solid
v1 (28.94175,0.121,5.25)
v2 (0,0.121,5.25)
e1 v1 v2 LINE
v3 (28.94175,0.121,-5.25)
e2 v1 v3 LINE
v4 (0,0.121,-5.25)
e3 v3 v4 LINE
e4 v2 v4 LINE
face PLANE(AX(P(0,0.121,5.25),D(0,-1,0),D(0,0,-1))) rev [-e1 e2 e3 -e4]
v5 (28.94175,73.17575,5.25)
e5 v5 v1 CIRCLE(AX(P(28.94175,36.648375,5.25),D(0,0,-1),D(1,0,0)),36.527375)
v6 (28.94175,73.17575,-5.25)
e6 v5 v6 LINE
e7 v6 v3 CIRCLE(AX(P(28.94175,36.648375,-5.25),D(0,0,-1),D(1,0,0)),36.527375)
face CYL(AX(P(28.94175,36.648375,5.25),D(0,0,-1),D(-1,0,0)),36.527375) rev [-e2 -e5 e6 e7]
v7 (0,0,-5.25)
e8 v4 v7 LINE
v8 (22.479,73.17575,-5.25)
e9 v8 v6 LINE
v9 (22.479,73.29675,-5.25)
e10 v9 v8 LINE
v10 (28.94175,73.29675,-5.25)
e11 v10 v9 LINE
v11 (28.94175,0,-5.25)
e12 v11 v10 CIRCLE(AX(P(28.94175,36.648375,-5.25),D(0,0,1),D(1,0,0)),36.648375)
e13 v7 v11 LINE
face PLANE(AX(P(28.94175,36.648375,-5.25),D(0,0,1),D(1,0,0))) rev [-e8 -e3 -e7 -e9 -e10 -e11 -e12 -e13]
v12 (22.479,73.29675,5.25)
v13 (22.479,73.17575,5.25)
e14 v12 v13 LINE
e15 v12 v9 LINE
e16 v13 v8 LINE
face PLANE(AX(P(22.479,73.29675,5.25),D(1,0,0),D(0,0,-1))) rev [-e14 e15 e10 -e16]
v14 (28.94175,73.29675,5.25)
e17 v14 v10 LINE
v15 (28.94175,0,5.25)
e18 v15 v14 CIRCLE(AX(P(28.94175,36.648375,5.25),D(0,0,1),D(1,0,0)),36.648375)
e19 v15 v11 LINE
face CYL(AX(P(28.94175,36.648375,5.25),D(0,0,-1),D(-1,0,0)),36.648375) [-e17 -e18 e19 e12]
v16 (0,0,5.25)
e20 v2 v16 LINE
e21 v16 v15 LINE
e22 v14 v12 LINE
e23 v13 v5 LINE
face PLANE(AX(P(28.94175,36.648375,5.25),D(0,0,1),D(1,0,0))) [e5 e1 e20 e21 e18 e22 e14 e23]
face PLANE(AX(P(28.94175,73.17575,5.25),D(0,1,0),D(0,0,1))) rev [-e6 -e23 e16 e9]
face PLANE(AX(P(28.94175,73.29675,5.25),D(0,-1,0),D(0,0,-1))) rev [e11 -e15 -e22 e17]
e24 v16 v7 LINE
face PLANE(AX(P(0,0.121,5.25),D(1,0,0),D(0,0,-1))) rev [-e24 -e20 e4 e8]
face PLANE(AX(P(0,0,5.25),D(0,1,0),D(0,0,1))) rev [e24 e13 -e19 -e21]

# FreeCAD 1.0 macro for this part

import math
import FreeCAD as App
import Part
import Sketcher

V = App.Vector
Q = App.Units.Quantity

doc = App.newDocument("Part")
params = doc.addObject("Spreadsheet::Sheet", "Params")
for row, (alias, value) in enumerate([
    ("pad1_length", "10.5 mm"),
], start=1):
    params.set(f"A{row}", alias)
    params.set(f"B{row}", "=" + value)
    params.setAlias(f"B{row}", alias)

body = doc.addObject("PartDesign::Body", "Body")

# Sketch on XY plane
sketch1 = body.newObject("Sketcher::SketchObject", "Sketch")
sketch1.AttachmentSupport = (doc.getObject("XY_Plane"), [""])
sketch1.MapMode = "FlatFace"
sketch1.addGeometry([
    Part.LineSegment(V(0, 0, 0), V(28.94, 0, 0)),  # 0
    Part.ArcOfCircle(Part.Circle(V(28.94, 36.65, 0), V(0, 0, 1), 36.65), math.radians(-90), math.radians(90)),  # 1
    Part.LineSegment(V(28.94, 73.3, 0), V(22.48, 73.3, 0)),  # 2
    Part.LineSegment(V(22.48, 73.3, 0), V(22.48, 73.18, 0)),  # 3
    Part.LineSegment(V(22.48, 73.18, 0), V(28.94, 73.18, 0)),  # 4
    Part.ArcOfCircle(Part.Circle(V(28.94, 36.65, 0), V(0, 0, 1), 36.53), math.radians(-90), math.radians(90)),  # 5
    Part.LineSegment(V(28.94, 0.12, 0), V(0, 0.12, 0)),  # 6
    Part.LineSegment(V(0, 0.12, 0), V(0, 0, 0)),  # 7
], False)
sketch1.addConstraint([
    Sketcher.Constraint("Tangent", 0, 2, 1, 1),
    Sketcher.Constraint("Tangent", 1, 2, 2, 1),
    Sketcher.Constraint("Coincident", 2, 2, 3, 1),
    Sketcher.Constraint("Coincident", 3, 2, 4, 1),
    Sketcher.Constraint("Tangent", 4, 2, 5, 2),
    Sketcher.Constraint("Tangent", 5, 1, 6, 1),
    Sketcher.Constraint("Coincident", 6, 2, 7, 1),
    Sketcher.Constraint("Coincident", 7, 2, 0, 1),
    Sketcher.Constraint("Horizontal", 0),
    Sketcher.Constraint("Horizontal", 2),
    Sketcher.Constraint("Vertical", 3),
    Sketcher.Constraint("Horizontal", 4),
    Sketcher.Constraint("Horizontal", 6),
    Sketcher.Constraint("Vertical", 7),
    Sketcher.Constraint("Coincident", 7, 2, -1, 1),
    Sketcher.Constraint("Coincident", 5, 3, 1, 3),
    Sketcher.Constraint("DistanceY", 3, 2, 3, 1, Q("0.121 mm")),
    Sketcher.Constraint("DistanceX", -1, 1, 2, 2, Q("22.479 mm")),
    Sketcher.Constraint("Radius", 1, Q("36.648375 mm")),
    Sketcher.Constraint("DistanceX", 0, 1, 0, 2, Q("28.94175 mm")),
])
pad1 = body.newObject("PartDesign::Pad", "Pad")
pad1.Profile = sketch1
pad1.setExpression("Length", "Params.pad1_length")
pad1.Midplane = True

doc.recompute()
